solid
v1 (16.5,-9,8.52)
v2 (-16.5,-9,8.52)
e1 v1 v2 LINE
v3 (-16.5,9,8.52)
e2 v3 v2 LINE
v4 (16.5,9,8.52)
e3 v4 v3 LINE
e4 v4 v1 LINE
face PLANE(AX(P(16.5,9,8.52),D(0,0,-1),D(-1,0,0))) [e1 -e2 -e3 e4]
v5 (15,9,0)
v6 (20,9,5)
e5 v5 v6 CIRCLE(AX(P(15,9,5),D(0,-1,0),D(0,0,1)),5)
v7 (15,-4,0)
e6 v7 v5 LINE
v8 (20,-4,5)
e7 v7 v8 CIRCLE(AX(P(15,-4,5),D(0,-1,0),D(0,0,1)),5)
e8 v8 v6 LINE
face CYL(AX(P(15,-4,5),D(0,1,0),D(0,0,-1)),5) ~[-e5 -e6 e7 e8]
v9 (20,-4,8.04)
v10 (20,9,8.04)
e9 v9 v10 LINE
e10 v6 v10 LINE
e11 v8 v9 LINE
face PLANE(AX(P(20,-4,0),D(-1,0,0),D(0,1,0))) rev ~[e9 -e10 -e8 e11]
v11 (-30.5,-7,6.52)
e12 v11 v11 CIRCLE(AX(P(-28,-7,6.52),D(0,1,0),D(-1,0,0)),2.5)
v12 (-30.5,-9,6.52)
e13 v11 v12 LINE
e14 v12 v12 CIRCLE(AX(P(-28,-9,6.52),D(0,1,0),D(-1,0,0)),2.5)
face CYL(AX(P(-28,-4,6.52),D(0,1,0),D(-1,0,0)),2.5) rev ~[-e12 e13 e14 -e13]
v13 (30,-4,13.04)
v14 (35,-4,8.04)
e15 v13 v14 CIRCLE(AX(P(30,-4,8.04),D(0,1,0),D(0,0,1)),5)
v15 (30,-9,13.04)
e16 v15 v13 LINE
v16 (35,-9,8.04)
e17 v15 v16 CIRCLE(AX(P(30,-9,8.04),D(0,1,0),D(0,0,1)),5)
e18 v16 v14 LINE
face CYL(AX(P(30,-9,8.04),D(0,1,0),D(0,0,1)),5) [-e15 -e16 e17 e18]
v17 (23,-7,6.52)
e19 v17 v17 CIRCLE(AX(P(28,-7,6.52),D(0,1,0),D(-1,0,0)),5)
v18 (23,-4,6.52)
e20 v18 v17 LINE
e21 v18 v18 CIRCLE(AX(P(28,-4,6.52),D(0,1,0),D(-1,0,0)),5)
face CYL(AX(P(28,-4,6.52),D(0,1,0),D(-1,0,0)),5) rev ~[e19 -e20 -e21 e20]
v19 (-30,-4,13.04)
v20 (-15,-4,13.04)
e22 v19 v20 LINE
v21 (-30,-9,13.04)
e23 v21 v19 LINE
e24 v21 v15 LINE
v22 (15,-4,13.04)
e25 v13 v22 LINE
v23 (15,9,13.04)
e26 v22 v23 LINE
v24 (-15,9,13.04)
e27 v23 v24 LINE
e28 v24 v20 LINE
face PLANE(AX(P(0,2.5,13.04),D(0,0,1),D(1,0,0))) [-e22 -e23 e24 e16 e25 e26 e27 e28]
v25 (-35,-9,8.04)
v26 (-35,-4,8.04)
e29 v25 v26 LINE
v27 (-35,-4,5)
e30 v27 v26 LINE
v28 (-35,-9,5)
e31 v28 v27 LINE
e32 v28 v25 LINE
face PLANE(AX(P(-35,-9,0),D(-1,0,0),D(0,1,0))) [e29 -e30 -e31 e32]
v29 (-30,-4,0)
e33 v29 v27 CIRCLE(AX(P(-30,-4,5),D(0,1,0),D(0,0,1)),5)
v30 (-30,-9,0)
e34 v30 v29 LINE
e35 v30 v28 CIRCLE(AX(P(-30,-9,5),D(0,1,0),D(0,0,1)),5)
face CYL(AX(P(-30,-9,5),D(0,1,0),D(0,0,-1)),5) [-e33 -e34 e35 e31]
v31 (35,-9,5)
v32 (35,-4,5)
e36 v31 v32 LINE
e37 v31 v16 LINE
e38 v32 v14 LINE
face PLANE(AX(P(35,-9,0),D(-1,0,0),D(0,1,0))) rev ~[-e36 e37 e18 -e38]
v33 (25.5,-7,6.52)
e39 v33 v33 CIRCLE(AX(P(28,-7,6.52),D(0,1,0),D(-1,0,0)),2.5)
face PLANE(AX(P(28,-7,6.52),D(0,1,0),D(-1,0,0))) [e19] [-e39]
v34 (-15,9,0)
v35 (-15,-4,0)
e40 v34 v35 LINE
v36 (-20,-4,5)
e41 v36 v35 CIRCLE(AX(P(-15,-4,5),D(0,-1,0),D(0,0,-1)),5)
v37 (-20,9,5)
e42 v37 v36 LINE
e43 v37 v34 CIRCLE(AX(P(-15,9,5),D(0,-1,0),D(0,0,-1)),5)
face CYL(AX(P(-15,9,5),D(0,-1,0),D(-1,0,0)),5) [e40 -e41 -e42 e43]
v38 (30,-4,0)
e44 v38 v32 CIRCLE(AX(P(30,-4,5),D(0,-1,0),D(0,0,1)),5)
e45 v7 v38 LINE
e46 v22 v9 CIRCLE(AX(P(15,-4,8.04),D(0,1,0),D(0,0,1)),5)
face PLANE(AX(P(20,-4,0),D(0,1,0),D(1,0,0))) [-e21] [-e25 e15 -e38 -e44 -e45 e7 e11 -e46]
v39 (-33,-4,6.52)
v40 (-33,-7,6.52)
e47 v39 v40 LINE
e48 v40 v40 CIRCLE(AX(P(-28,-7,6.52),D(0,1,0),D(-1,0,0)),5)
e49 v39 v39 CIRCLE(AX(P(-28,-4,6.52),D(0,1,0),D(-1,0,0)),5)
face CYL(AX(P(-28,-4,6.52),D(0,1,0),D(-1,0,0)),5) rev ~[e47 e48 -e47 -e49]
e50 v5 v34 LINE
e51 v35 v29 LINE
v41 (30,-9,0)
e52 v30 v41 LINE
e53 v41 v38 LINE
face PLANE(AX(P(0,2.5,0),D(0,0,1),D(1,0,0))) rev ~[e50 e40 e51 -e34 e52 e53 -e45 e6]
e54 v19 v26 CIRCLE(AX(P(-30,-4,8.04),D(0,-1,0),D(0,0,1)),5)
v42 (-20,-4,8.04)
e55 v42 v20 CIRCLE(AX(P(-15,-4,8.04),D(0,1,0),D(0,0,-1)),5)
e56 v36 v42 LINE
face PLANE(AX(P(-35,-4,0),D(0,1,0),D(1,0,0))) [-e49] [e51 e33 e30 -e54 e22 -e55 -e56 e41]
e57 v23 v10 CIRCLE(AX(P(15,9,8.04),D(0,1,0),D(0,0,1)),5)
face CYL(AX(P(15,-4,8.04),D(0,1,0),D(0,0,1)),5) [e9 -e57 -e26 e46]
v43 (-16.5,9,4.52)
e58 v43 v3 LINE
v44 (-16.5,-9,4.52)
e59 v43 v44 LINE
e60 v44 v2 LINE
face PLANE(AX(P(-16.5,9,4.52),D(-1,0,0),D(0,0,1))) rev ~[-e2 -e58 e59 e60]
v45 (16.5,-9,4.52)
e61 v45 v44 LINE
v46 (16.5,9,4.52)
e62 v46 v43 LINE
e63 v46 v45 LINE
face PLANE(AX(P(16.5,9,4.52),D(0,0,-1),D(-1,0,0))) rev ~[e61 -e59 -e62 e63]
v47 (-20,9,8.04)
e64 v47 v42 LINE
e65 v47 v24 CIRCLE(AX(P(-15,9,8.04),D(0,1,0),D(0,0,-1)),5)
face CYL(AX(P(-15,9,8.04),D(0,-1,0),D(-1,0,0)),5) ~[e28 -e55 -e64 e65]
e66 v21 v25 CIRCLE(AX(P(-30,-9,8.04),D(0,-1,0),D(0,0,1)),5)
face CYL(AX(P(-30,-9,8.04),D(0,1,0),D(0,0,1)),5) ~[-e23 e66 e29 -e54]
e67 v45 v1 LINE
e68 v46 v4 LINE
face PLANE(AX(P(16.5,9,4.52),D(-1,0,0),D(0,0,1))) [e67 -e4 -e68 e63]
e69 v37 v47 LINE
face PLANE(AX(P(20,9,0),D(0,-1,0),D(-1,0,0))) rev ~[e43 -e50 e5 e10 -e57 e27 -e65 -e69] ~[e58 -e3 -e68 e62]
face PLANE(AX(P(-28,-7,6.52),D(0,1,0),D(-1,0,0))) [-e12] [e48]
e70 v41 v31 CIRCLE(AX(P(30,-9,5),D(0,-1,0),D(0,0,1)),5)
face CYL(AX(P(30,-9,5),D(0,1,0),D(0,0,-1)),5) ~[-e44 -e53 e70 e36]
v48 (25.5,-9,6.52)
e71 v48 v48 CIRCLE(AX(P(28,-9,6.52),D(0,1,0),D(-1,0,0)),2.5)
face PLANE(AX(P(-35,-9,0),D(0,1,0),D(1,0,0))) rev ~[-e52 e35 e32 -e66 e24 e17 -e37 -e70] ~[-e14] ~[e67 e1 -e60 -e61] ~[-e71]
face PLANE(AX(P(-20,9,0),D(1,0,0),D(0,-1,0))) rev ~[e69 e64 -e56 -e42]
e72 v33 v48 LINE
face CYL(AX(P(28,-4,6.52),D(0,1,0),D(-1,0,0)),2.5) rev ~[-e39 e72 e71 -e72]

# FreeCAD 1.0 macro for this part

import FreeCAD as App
import Part
import Sketcher


def edges_at(feature, points):
    """Names of the edges that pass closest to the given points."""
    edges = feature.Shape.Edges
    near = lambda p: min(range(len(edges)), key=lambda i: edges[i].distToShape(Part.Vertex(*p))[0])
    return sorted({f"Edge{near(p) + 1}" for p in points})

doc = App.newDocument("Part")
body = doc.addObject("PartDesign::Body", "Body")

# Sketch on XY plane
sketch1 = body.newObject("Sketcher::SketchObject", "Sketch")
sketch1.AttachmentSupport = (doc.getObject("XY_Plane"), [""])
sketch1.MapMode = "FlatFace"
sketch1.addGeometry([
    Part.LineSegment(App.Vector(-20, 9, 0), App.Vector(-20, -4, 0)),  # 0
    Part.LineSegment(App.Vector(-20, -4, 0), App.Vector(-35, -4, 0)),  # 1
    Part.LineSegment(App.Vector(-35, -4, 0), App.Vector(-35, -9, 0)),  # 2
    Part.LineSegment(App.Vector(-35, -9, 0), App.Vector(35, -9, 0)),  # 3
    Part.LineSegment(App.Vector(35, -9, 0), App.Vector(35, -4, 0)),  # 4
    Part.LineSegment(App.Vector(35, -4, 0), App.Vector(20, -4, 0)),  # 5
    Part.LineSegment(App.Vector(20, -4, 0), App.Vector(20, 9, 0)),  # 6
    Part.LineSegment(App.Vector(20, 9, 0), App.Vector(-20, 9, 0)),  # 7
], False)
sketch1.addConstraint([
    Sketcher.Constraint("Coincident", 0, 2, 1, 1),
    Sketcher.Constraint("Coincident", 1, 2, 2, 1),
    Sketcher.Constraint("Coincident", 2, 2, 3, 1),
    Sketcher.Constraint("Coincident", 3, 2, 4, 1),
    Sketcher.Constraint("Coincident", 4, 2, 5, 1),
    Sketcher.Constraint("Coincident", 5, 2, 6, 1),
    Sketcher.Constraint("Coincident", 6, 2, 7, 1),
    Sketcher.Constraint("Coincident", 7, 2, 0, 1),
    Sketcher.Constraint("Vertical", 0),
    Sketcher.Constraint("Horizontal", 1),
    Sketcher.Constraint("Vertical", 2),
    Sketcher.Constraint("Horizontal", 3),
    Sketcher.Constraint("Vertical", 4),
    Sketcher.Constraint("Horizontal", 5),
    Sketcher.Constraint("Vertical", 6),
    Sketcher.Constraint("Horizontal", 7),
    Sketcher.Constraint("Symmetric", 1, 2, 4, 2, -2),
    Sketcher.Constraint("Equal", 1, 5),
    Sketcher.Constraint("DistanceX", 1, 2, 1, 1, 15.0),
    Sketcher.Constraint("DistanceX", 3, 1, 3, 2, 70.0),
    Sketcher.Constraint("DistanceY", 0, 2, 0, 1, 13.0),
    Sketcher.Constraint("DistanceY", 2, 2, 2, 1, 5.0),
    Sketcher.Constraint("DistanceY", 0, 2, -1, 1, 4.0),
])
pad1 = body.newObject("PartDesign::Pad", "Pad")
pad1.Profile = sketch1
pad1.Length = 13.04

# Sketch on XZ plane
sketch2 = body.newObject("Sketcher::SketchObject", "Sketch001")
sketch2.AttachmentSupport = (doc.getObject("XZ_Plane"), [""])
sketch2.MapMode = "FlatFace"
sketch2.AttachmentOffset = App.Placement(App.Vector(0, 0, -9), App.Rotation())
sketch2.addGeometry([
    Part.LineSegment(App.Vector(16.5, 8.5, 0), App.Vector(16.5, 4.5, 0)),
    Part.LineSegment(App.Vector(16.5, 4.5, 0), App.Vector(-16.5, 4.5, 0)),
    Part.LineSegment(App.Vector(-16.5, 4.5, 0), App.Vector(-16.5, 8.5, 0)),
    Part.LineSegment(App.Vector(-16.5, 8.5, 0), App.Vector(16.5, 8.5, 0)),
], False)
sketch2.addConstraint([
    Sketcher.Constraint("Coincident", 0, 2, 1, 1),
    Sketcher.Constraint("Coincident", 1, 2, 2, 1),
    Sketcher.Constraint("Coincident", 2, 2, 3, 1),
    Sketcher.Constraint("Coincident", 3, 2, 0, 1),
    Sketcher.Constraint("Vertical", 0),
    Sketcher.Constraint("Horizontal", 1),
    Sketcher.Constraint("Vertical", 2),
    Sketcher.Constraint("Horizontal", 3),
    Sketcher.Constraint("DistanceX", 1, 2, 1, 1, 33.0),
    Sketcher.Constraint("DistanceY", 0, 2, 0, 1, 4.0),
    Sketcher.Constraint("DistanceX", -1, 1, 0, 2, 16.5),
    Sketcher.Constraint("DistanceY", -1, 1, 0, 2, 4.52),
])
pocket1 = body.newObject("PartDesign::Pocket", "Pocket")
pocket1.Profile = sketch2
pocket1.Length = 40.6
pocket1.Reversed = True

# Sketch on XZ plane
sketch3 = body.newObject("Sketcher::SketchObject", "Sketch002")
sketch3.AttachmentSupport = (doc.getObject("XZ_Plane"), [""])
sketch3.MapMode = "FlatFace"
sketch3.AttachmentOffset = App.Placement(App.Vector(0, 0, 4), App.Rotation())
sketch3.addGeometry([
    Part.Circle(App.Vector(28, 6.5, 0), App.Vector(0, 0, 1), 2.5),
    Part.Circle(App.Vector(-28, 6.5, 0), App.Vector(0, 0, 1), 2.5),
], False)
sketch3.addConstraint([
    Sketcher.Constraint("Equal", 0, 1),
    Sketcher.Constraint("Symmetric", 0, 3, 1, 3, -2),
    Sketcher.Constraint("Diameter", 0, 5.0),
    Sketcher.Constraint("DistanceX", -1, 1, 0, 3, 28.0),
    Sketcher.Constraint("DistanceY", -1, 1, 0, 3, 6.52),
])
pocket2 = body.newObject("PartDesign::Pocket", "Pocket001")
pocket2.Profile = sketch3
pocket2.Length = 9.9
pocket2.Reversed = True

# Sketch on XZ plane
sketch4 = body.newObject("Sketcher::SketchObject", "Sketch003")
sketch4.AttachmentSupport = (doc.getObject("XZ_Plane"), [""])
sketch4.MapMode = "FlatFace"
sketch4.AttachmentOffset = App.Placement(App.Vector(0, 0, 4), App.Rotation())
sketch4.addGeometry([
    Part.Circle(App.Vector(28, 6.5, 0), App.Vector(0, 0, 1), 5),
    Part.Circle(App.Vector(28, 6.5, 0), App.Vector(0, 0, 1), 2.5),
    Part.Circle(App.Vector(-28, 6.5, 0), App.Vector(0, 0, 1), 5),
    Part.Circle(App.Vector(-28, 6.5, 0), App.Vector(0, 0, 1), 2.5),
], False)
sketch4.addConstraint([
    Sketcher.Constraint("Coincident", 1, 3, 0, 3),
    Sketcher.Constraint("Coincident", 3, 3, 2, 3),
    Sketcher.Constraint("Equal", 0, 2),
    Sketcher.Constraint("Equal", 1, 3),
    Sketcher.Constraint("Symmetric", 0, 3, 2, 3, -2),
    Sketcher.Constraint("Diameter", 0, 10.0),
    Sketcher.Constraint("Diameter", 1, 5.0),
    Sketcher.Constraint("DistanceX", -1, 1, 0, 3, 28.0),
    Sketcher.Constraint("DistanceY", -1, 1, 0, 3, 6.52),
])
pocket3 = body.newObject("PartDesign::Pocket", "Pocket002")
pocket3.Profile = sketch4
pocket3.Length = 3
pocket3.Reversed = True
doc.recompute()

fillet = body.newObject("PartDesign::Fillet", "Fillet")
fillet.Base = (pocket3, edges_at(pocket3, [
    (35, -6.5, 13.04),
    (35, -6.5, 0),
    (-35, -6.5, 13.04),
    (-35, -6.5, 0),
    (20, 2.5, 13.04),
    (-20, 2.5, 13.04),
    (-20, 2.5, 0),
    (20, 2.5, 0),
]))
fillet.Radius = 5

doc.recompute()
